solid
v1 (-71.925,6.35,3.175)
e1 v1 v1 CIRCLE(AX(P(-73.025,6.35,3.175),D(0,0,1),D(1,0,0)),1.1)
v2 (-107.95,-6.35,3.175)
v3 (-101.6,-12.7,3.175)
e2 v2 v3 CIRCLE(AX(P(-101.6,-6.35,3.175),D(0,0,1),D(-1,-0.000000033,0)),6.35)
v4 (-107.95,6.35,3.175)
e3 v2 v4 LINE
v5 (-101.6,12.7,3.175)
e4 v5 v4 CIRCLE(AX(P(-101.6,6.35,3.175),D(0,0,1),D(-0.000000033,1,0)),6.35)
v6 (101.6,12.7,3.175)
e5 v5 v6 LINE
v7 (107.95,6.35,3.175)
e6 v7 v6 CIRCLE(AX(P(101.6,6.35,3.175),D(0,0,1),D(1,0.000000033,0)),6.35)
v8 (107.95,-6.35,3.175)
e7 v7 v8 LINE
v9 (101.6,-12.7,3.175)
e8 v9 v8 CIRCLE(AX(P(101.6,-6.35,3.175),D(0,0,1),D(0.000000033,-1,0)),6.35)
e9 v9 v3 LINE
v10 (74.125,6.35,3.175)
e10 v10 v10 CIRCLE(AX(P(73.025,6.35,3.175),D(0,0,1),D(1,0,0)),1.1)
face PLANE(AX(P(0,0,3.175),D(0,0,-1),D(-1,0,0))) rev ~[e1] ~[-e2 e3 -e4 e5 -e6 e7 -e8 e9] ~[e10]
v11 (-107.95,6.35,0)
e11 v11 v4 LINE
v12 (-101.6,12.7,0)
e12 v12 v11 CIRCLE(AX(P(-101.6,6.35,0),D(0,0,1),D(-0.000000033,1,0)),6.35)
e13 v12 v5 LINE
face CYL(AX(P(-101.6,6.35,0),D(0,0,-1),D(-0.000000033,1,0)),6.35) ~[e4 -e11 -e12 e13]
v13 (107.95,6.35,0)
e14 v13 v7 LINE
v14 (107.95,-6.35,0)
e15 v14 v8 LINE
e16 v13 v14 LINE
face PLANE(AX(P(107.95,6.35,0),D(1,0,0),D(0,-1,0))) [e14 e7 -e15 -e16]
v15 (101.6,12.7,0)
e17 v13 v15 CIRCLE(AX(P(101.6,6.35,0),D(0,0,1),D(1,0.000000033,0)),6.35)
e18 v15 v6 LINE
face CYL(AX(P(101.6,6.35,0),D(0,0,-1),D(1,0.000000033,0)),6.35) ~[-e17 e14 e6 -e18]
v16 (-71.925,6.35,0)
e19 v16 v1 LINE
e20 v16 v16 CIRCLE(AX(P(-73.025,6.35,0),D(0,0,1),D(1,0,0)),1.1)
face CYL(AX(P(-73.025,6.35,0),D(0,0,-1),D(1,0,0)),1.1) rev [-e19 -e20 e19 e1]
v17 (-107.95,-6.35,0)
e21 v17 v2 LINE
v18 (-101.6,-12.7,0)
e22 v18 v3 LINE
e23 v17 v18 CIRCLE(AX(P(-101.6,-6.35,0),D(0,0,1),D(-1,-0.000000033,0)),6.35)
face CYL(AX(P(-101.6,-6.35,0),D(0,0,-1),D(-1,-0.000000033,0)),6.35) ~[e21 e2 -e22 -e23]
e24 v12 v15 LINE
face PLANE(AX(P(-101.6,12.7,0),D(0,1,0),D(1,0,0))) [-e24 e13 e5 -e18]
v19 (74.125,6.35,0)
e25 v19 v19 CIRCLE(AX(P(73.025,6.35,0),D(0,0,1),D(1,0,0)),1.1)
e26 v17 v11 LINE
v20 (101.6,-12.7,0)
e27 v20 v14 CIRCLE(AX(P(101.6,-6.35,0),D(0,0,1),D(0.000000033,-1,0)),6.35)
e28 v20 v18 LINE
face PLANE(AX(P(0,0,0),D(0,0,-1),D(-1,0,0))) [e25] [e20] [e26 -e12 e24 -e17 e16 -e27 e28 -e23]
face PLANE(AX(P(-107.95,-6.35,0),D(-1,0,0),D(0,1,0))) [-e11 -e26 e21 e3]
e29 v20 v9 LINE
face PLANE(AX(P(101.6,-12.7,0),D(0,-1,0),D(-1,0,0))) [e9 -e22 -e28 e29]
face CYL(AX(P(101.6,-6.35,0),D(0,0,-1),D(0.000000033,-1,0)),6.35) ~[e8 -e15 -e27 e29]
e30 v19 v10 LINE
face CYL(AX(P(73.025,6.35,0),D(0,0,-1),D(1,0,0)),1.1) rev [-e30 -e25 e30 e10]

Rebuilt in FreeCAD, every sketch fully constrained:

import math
import FreeCAD as App
import Part
import Sketcher
from FreeCAD import Vector
Q = App.Units.Quantity

doc = App.newDocument("Part")
body = doc.addObject("PartDesign::Body", "Body")

sketch1 = body.newObject("Sketcher::SketchObject", "Sketch")
sketch1.AttachmentSupport = (doc.getObject("XY_Plane"), [""])
sketch1.MapMode = "FlatFace"
sketch1.addGeometry(Part.LineSegment(Vector(101.6, 12.7, 0), Vector(-101.6, 12.7, 0)), False)
sketch1.addGeometry(Part.ArcOfCircle(Part.Circle(Vector(-101.6, 6.3, 0), Vector(0, 0, 1), 6.4), math.radians(90), math.radians(180)), False)
sketch1.addGeometry(Part.LineSegment(Vector(-108, 6.3, 0), Vector(-108, -6.3, 0)), False)
sketch1.addGeometry(Part.ArcOfCircle(Part.Circle(Vector(-101.6, -6.3, 0), Vector(0, 0, 1), 6.4), math.radians(-180), math.radians(-90)), False)
sketch1.addGeometry(Part.LineSegment(Vector(-101.6, -12.7, 0), Vector(101.6, -12.7, 0)), False)
sketch1.addGeometry(Part.ArcOfCircle(Part.Circle(Vector(101.6, -6.3, 0), Vector(0, 0, 1), 6.4), math.radians(-90), math.radians(0)), False)
sketch1.addGeometry(Part.LineSegment(Vector(108, -6.3, 0), Vector(108, 6.3, 0)), False)
sketch1.addGeometry(Part.ArcOfCircle(Part.Circle(Vector(101.6, 6.3, 0), Vector(0, 0, 1), 6.4), math.radians(0), math.radians(90)), False)
sketch1.addGeometry(Part.Circle(Vector(73, 6.3, 0), Vector(0, 0, 1), 1.1), False)
sketch1.addGeometry(Part.Circle(Vector(-73, 6.3, 0), Vector(0, 0, 1), 1.1), False)
sketch1.addConstraint(Sketcher.Constraint("Tangent", 0, 2, 1, 1))
sketch1.addConstraint(Sketcher.Constraint("Tangent", 1, 2, 2, 1))
sketch1.addConstraint(Sketcher.Constraint("Tangent", 2, 2, 3, 1))
sketch1.addConstraint(Sketcher.Constraint("Tangent", 3, 2, 4, 1))
sketch1.addConstraint(Sketcher.Constraint("Tangent", 4, 2, 5, 1))
sketch1.addConstraint(Sketcher.Constraint("Tangent", 5, 2, 6, 1))
sketch1.addConstraint(Sketcher.Constraint("Tangent", 6, 2, 7, 1))
sketch1.addConstraint(Sketcher.Constraint("Tangent", 7, 2, 0, 1))
sketch1.addConstraint(Sketcher.Constraint("Horizontal", 0))
sketch1.addConstraint(Sketcher.Constraint("Vertical", 2))
sketch1.addConstraint(Sketcher.Constraint("Horizontal", 4))
sketch1.addConstraint(Sketcher.Constraint("Vertical", 6))
sketch1.addConstraint(Sketcher.Constraint("Equal", 1, 3))
sketch1.addConstraint(Sketcher.Constraint("Equal", 3, 5))
sketch1.addConstraint(Sketcher.Constraint("Equal", 5, 7))
sketch1.addConstraint(Sketcher.Constraint("Equal", 8, 9))
sketch1.addConstraint(Sketcher.Constraint("Symmetric", 1, 3, 5, 3, -1, 1))
sketch1.addConstraint(Sketcher.Constraint("Symmetric", 8, 3, 9, 3, -2))
sketch1.addConstraint(Sketcher.Constraint("Horizontal", 7, 3, 8, 3))
sketch1.addConstraint(Sketcher.Constraint("DistanceX", 0, 2, 0, 1, Q("8 in")))
sketch1.addConstraint(Sketcher.Constraint("Radius", 1, Q("0.25 in")))
sketch1.addConstraint(Sketcher.Constraint("DistanceY", 2, 2, 2, 1, Q("0.5 in")))
sketch1.addConstraint(Sketcher.Constraint("Diameter", 8, Q("2.2 mm")))
sketch1.addConstraint(Sketcher.Constraint("DistanceX", 9, 3, 8, 3, Q("5.75 in")))
pad1 = body.newObject("PartDesign::Pad", "Pad")
pad1.Profile = sketch1
pad1.Length = Q("0.125 in")

doc.recompute()
